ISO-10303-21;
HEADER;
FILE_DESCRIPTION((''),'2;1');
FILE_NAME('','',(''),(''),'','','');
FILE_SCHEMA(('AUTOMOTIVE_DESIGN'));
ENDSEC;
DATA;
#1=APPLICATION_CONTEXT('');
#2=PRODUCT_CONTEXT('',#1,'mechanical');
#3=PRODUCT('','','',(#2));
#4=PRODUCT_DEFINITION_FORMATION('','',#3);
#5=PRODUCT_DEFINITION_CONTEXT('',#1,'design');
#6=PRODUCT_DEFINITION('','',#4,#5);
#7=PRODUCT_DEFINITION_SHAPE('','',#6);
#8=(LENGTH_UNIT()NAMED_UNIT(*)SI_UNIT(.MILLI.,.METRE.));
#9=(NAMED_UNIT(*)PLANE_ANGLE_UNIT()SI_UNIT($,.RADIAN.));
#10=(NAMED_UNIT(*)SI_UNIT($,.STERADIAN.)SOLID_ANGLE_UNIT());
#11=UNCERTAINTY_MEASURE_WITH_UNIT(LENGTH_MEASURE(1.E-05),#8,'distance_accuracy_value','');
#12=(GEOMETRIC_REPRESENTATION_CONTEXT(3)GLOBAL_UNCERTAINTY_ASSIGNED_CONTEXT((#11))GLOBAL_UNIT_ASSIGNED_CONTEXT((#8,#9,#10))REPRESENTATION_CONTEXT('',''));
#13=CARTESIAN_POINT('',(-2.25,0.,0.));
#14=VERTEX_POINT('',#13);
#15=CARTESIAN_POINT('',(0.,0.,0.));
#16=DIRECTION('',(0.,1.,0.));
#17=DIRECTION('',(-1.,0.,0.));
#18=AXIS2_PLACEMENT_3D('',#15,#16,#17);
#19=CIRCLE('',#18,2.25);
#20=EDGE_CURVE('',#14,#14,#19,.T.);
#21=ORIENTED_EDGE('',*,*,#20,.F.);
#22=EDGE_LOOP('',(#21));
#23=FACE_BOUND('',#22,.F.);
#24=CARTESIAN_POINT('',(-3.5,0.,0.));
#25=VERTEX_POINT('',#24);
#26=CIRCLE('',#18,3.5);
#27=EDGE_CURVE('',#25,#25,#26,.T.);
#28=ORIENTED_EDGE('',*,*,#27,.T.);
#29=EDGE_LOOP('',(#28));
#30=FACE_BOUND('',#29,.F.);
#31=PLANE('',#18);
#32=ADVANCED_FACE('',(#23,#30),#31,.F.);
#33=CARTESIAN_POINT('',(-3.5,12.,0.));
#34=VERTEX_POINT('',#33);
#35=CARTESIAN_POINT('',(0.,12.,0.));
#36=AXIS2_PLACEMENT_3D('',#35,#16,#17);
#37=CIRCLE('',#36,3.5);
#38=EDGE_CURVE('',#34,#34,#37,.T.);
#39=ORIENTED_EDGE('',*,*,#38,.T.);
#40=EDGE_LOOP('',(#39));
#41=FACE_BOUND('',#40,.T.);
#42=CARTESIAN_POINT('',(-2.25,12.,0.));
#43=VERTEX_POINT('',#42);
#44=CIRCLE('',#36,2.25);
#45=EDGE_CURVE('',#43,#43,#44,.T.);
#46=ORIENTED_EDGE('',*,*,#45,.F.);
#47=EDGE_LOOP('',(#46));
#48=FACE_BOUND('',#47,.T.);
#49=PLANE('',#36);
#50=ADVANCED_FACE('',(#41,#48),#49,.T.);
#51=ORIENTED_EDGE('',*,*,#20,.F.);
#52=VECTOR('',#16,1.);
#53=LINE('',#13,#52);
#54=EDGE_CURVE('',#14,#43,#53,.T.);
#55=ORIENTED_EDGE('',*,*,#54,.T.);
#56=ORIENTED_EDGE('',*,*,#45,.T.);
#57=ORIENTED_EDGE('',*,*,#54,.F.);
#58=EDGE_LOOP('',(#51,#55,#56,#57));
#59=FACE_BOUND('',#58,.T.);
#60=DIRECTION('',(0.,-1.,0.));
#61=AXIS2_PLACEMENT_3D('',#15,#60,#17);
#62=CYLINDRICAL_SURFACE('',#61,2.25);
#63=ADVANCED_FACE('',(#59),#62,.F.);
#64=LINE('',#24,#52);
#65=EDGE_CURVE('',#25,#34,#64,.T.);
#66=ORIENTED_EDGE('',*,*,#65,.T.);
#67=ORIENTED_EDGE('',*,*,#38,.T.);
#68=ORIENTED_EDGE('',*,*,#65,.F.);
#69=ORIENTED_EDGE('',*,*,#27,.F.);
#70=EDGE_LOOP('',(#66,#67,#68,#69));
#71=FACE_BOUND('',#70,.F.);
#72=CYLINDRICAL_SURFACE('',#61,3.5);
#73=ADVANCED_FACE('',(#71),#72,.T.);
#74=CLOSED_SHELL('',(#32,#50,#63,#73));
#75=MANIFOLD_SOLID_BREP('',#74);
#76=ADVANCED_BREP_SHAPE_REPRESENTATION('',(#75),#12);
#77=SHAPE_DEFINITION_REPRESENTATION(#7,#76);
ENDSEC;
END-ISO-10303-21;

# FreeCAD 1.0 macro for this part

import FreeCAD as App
import Part
import Sketcher
from FreeCAD import Vector
Q = App.Units.Quantity

doc = App.newDocument("Part")
body = doc.addObject("PartDesign::Body", "Body")

sketch1 = body.newObject("Sketcher::SketchObject", "Sketch")
sketch1.AttachmentSupport = (doc.getObject("XZ_Plane"), [""])
sketch1.MapMode = "FlatFace"
sketch1.addGeometry([
    Part.Circle(Vector(0, 0, 0), Vector(0, 0, 1), 3.5),
    Part.Circle(Vector(0, 0, 0), Vector(0, 0, 1), 2.2),
], False)
sketch1.addConstraint([
    Sketcher.Constraint("Coincident", 0, 3, -1, 1),
    Sketcher.Constraint("Coincident", 1, 3, -1, 1),
    Sketcher.Constraint("Diameter", 0, Q("7 mm")),
    Sketcher.Constraint("Diameter", 1, Q("4.5 mm")),
])
pad1 = body.newObject("PartDesign::Pad", "Pad")
pad1.Profile = sketch1
pad1.Length = 12
pad1.Reversed = True

doc.recompute()
